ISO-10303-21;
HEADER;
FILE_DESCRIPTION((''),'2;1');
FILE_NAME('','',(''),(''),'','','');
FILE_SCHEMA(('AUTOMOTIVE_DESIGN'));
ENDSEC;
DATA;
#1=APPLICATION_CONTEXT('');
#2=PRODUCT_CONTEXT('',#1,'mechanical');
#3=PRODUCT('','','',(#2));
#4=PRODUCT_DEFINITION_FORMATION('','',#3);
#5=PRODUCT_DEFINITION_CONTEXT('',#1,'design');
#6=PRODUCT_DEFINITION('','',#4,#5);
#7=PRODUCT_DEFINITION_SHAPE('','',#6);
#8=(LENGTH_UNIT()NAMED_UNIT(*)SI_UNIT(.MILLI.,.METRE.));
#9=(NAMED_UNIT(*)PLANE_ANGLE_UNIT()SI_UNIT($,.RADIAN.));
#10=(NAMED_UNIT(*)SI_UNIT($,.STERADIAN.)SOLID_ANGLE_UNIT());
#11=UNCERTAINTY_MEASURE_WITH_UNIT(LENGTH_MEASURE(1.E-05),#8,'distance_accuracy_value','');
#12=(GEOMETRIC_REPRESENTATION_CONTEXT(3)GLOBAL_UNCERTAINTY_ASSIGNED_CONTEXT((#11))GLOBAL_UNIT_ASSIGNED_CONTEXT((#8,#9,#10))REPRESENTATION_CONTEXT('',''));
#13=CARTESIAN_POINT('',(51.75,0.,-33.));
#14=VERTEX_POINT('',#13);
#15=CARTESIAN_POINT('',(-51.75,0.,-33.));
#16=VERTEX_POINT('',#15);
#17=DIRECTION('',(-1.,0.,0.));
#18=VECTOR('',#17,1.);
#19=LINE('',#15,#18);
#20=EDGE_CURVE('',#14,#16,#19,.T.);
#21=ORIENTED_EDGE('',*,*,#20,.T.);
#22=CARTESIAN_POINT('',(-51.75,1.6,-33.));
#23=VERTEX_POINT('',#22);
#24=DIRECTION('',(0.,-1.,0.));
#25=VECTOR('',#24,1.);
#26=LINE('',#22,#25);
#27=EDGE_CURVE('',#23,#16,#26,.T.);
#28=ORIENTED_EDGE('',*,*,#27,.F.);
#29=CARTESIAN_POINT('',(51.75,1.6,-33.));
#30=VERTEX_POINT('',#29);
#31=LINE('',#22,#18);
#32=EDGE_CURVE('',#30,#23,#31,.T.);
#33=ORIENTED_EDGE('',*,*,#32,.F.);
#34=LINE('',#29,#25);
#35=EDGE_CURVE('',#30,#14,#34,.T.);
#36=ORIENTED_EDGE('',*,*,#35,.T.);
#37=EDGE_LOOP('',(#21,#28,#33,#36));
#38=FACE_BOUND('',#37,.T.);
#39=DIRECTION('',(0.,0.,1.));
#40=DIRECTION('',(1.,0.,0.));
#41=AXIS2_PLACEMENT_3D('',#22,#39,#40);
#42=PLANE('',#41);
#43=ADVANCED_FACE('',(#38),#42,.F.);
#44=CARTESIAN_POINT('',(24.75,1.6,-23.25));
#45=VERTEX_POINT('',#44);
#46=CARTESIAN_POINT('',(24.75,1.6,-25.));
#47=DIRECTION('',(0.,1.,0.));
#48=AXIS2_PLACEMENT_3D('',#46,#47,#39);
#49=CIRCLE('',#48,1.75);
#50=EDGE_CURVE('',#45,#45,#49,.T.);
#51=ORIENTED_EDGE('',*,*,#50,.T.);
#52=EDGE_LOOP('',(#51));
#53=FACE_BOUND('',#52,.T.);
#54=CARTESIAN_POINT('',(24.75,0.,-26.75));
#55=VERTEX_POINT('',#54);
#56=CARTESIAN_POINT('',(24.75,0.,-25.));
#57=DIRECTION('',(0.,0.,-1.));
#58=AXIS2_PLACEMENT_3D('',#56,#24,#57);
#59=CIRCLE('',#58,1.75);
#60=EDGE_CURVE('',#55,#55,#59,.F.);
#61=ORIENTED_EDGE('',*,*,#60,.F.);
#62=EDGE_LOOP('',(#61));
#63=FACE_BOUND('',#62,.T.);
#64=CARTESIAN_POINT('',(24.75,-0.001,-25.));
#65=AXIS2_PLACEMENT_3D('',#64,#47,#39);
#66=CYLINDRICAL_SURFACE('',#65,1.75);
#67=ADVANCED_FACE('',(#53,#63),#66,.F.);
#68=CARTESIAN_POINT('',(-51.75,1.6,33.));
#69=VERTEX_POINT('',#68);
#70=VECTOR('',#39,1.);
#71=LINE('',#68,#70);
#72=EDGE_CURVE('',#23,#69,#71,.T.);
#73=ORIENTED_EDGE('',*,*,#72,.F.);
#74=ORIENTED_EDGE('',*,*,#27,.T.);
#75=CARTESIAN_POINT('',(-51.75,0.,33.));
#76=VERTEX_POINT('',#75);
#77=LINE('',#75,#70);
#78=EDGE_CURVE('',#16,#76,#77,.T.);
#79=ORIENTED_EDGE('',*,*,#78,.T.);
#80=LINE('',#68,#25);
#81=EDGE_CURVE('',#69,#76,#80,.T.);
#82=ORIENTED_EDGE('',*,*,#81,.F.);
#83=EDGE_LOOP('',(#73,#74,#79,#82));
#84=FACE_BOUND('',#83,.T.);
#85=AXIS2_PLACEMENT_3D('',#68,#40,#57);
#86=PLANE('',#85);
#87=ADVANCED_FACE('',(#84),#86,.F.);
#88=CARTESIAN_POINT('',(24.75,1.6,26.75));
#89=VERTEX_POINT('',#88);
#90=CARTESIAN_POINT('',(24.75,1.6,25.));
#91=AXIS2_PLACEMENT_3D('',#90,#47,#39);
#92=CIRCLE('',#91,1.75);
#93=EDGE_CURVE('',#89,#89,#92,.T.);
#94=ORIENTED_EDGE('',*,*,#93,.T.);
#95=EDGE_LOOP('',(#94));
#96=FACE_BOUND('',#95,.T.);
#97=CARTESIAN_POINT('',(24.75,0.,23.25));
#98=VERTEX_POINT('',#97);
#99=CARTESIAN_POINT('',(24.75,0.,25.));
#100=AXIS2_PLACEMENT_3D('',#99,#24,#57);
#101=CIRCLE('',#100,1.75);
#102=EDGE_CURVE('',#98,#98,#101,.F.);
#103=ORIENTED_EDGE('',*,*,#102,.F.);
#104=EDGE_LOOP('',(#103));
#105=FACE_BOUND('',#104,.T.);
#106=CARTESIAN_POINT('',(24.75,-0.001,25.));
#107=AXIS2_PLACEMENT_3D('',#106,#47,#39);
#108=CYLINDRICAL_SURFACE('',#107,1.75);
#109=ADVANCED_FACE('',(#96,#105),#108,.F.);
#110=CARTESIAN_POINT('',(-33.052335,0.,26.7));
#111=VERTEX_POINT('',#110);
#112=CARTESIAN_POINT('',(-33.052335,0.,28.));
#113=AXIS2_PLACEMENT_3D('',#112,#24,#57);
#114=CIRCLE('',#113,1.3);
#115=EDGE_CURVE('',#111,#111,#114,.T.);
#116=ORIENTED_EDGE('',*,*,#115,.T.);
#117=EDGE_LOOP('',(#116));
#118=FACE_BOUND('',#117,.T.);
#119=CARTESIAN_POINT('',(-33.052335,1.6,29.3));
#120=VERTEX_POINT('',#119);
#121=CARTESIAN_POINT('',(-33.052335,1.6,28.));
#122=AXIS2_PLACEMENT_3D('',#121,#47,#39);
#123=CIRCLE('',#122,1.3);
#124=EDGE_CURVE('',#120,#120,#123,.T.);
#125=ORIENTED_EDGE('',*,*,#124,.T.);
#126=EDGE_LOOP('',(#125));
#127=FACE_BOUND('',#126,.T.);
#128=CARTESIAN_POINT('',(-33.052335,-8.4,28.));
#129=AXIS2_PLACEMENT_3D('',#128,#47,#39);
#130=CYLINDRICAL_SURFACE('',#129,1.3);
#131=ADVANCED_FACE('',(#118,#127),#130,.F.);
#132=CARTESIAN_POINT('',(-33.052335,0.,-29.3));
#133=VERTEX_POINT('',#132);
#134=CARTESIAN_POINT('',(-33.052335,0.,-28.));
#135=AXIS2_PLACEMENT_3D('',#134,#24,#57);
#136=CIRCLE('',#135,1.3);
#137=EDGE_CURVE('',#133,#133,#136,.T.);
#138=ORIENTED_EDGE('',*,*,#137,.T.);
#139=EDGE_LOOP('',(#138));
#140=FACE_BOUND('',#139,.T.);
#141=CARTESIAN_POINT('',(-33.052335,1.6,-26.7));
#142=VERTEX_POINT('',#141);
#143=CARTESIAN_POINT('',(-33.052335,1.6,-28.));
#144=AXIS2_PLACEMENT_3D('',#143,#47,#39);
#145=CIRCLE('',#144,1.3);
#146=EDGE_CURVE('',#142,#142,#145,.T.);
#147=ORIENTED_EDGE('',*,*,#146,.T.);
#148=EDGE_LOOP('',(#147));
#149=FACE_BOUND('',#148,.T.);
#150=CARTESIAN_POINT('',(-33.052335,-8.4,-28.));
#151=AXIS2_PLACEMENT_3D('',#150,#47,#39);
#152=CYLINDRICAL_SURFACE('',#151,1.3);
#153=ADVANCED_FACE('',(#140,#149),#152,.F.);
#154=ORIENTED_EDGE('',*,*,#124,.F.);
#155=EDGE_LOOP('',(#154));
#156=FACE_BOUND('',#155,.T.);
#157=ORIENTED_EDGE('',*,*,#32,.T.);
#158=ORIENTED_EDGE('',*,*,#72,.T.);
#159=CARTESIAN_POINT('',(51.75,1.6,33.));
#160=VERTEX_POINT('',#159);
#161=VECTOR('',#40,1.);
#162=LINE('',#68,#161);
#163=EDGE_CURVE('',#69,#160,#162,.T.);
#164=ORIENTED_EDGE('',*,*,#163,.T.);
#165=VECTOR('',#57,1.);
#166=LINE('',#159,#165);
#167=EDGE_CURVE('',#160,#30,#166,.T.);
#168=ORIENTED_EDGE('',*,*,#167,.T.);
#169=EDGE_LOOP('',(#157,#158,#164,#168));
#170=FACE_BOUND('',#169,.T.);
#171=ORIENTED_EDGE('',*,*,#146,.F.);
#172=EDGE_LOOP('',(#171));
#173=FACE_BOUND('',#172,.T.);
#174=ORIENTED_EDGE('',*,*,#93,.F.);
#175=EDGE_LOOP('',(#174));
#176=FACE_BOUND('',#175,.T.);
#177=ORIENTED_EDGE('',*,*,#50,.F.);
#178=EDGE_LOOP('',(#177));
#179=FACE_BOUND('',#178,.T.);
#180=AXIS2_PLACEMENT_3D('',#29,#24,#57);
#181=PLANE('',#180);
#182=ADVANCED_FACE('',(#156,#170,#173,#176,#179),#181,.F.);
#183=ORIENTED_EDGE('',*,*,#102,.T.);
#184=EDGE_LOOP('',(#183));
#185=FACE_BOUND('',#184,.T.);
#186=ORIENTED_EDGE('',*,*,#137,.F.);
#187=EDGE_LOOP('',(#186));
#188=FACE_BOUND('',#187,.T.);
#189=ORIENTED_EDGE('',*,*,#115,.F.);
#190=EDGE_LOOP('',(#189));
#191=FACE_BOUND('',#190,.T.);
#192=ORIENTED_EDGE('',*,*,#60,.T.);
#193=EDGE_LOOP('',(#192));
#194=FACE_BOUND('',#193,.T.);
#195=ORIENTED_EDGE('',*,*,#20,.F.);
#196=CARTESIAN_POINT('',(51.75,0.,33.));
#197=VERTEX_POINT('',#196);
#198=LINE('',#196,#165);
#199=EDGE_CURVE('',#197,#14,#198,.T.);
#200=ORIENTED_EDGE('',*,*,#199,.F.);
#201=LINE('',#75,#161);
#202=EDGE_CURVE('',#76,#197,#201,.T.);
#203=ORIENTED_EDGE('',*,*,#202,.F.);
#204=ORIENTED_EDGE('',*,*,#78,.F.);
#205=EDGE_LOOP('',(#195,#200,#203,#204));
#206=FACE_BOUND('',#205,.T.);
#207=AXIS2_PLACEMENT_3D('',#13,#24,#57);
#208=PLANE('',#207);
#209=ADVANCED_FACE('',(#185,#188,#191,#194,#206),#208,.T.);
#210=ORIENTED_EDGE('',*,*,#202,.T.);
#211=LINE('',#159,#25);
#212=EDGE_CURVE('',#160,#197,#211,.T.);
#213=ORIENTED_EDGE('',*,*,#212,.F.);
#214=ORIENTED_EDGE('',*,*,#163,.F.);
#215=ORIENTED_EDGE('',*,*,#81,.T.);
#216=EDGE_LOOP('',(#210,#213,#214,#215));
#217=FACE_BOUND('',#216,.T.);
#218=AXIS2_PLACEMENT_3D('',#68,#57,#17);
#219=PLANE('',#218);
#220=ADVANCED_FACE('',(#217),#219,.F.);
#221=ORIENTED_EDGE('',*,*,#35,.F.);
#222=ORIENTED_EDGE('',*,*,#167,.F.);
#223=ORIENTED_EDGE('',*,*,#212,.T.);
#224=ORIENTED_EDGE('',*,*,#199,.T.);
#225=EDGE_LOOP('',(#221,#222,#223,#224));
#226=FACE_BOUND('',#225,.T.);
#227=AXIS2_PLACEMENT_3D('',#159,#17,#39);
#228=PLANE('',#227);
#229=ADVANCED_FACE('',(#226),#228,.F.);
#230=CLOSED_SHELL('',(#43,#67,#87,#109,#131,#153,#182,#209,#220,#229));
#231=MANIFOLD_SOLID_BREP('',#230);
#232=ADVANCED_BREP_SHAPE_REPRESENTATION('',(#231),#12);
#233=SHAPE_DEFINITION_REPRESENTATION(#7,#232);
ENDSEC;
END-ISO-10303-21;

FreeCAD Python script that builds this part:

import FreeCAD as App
import Part
import Sketcher

V = App.Vector


def add_polygon(sketch, points):
    """Adds a closed chain of lines whose ends are joined by coincident constraints."""
    first, n = sketch.GeometryCount, len(points)
    for a, b in zip(points, points[1:] + points[:1]):
        sketch.addGeometry(Part.LineSegment(App.Vector(*a, 0), App.Vector(*b, 0)), False)
    for i in range(n):
        sketch.addConstraint(Sketcher.Constraint("Coincident", first + i, 2, first + (i + 1) % n, 1))

doc = App.newDocument("Part")
body = doc.addObject("PartDesign::Body", "Body")

sketch1 = body.newObject("Sketcher::SketchObject", "Sketch")
sketch1.AttachmentSupport = (doc.getObject("XZ_Plane"), [""])
sketch1.MapMode = "FlatFace"
add_polygon(sketch1, [(-52, -33), (-52, 33), (52, 33), (52, -33)])
sketch1.addConstraint([
    Sketcher.Constraint("Vertical", 0),
    Sketcher.Constraint("Horizontal", 1),
    Sketcher.Constraint("Vertical", 2),
    Sketcher.Constraint("Horizontal", 3),
    Sketcher.Constraint("Symmetric", 0, 2, 2, 2, -1, 1),
    Sketcher.Constraint("DistanceY", 0, 1, 0, 2, 66.0),
    Sketcher.Constraint("DistanceX", 1, 1, 1, 2, 103.5),
])
pad1 = body.newObject("PartDesign::Pad", "Pad")
pad1.Profile = sketch1
pad1.Length = 1.6
pad1.Reversed = True

sketch2 = body.newObject("Sketcher::SketchObject", "Sketch001")
sketch2.AttachmentSupport = (doc.getObject("XZ_Plane"), [""])
sketch2.MapMode = "FlatFace"
sketch2.AttachmentOffset = App.Placement(V(0, 0, -1.6), App.Rotation())
sketch2.addGeometry([
    Part.Circle(V(-33.1, -28, 0), V(0, 0, 1), 1.3),
    Part.Circle(V(-33.1, 28, 0), V(0, 0, 1), 1.3),
], False)
sketch2.addConstraint([
    Sketcher.Constraint("Equal", 0, 1),
    Sketcher.Constraint("Symmetric", 0, 3, 1, 3, -1),
    Sketcher.Constraint("Diameter", 0, 2.6),
    Sketcher.Constraint("DistanceY", 0, 3, -1, 1, 28.0),
    Sketcher.Constraint("DistanceX", 0, 3, -1, 1, 33.052335),
])
pocket1 = body.newObject("PartDesign::Pocket", "Pocket")
pocket1.Profile = sketch2
pocket1.Length = 10
pocket1.Reversed = True

sketch3 = body.newObject("Sketcher::SketchObject", "Sketch002")
sketch3.AttachmentSupport = (doc.getObject("XZ_Plane"), [""])
sketch3.MapMode = "FlatFace"
sketch3.AttachmentOffset = App.Placement(V(0, 0, -1.6), App.Rotation())
sketch3.addGeometry(Part.Circle(V(24.8, -25, 0), V(0, 0, 1), 1.8), False)
sketch3.addConstraint([
    Sketcher.Constraint("Diameter", 0, 3.5),
    Sketcher.Constraint("DistanceY", 0, 3, -1, 1, 25.0),
    Sketcher.Constraint("DistanceX", -1, 1, 0, 3, 24.75),
])
pocket2 = body.newObject("PartDesign::Pocket", "Pocket001")
pocket2.Profile = sketch3
pocket2.Type = "UpToFirst"
pocket2.Reversed = True

sketch4 = body.newObject("Sketcher::SketchObject", "Sketch003")
sketch4.AttachmentSupport = (doc.getObject("XZ_Plane"), [""])
sketch4.MapMode = "FlatFace"
sketch4.AttachmentOffset = App.Placement(V(0, 0, -1.6), App.Rotation())
sketch4.addGeometry(Part.Circle(V(24.8, 25, 0), V(0, 0, 1), 1.8), False)
sketch4.addConstraint([
    Sketcher.Constraint("Diameter", 0, 3.5),
    Sketcher.Constraint("DistanceY", -1, 1, 0, 3, 25.0),
    Sketcher.Constraint("DistanceX", -1, 1, 0, 3, 24.75),
])
pocket3 = body.newObject("PartDesign::Pocket", "Pocket002")
pocket3.Profile = sketch4
pocket3.Type = "UpToFirst"
pocket3.Reversed = True

doc.recompute()
